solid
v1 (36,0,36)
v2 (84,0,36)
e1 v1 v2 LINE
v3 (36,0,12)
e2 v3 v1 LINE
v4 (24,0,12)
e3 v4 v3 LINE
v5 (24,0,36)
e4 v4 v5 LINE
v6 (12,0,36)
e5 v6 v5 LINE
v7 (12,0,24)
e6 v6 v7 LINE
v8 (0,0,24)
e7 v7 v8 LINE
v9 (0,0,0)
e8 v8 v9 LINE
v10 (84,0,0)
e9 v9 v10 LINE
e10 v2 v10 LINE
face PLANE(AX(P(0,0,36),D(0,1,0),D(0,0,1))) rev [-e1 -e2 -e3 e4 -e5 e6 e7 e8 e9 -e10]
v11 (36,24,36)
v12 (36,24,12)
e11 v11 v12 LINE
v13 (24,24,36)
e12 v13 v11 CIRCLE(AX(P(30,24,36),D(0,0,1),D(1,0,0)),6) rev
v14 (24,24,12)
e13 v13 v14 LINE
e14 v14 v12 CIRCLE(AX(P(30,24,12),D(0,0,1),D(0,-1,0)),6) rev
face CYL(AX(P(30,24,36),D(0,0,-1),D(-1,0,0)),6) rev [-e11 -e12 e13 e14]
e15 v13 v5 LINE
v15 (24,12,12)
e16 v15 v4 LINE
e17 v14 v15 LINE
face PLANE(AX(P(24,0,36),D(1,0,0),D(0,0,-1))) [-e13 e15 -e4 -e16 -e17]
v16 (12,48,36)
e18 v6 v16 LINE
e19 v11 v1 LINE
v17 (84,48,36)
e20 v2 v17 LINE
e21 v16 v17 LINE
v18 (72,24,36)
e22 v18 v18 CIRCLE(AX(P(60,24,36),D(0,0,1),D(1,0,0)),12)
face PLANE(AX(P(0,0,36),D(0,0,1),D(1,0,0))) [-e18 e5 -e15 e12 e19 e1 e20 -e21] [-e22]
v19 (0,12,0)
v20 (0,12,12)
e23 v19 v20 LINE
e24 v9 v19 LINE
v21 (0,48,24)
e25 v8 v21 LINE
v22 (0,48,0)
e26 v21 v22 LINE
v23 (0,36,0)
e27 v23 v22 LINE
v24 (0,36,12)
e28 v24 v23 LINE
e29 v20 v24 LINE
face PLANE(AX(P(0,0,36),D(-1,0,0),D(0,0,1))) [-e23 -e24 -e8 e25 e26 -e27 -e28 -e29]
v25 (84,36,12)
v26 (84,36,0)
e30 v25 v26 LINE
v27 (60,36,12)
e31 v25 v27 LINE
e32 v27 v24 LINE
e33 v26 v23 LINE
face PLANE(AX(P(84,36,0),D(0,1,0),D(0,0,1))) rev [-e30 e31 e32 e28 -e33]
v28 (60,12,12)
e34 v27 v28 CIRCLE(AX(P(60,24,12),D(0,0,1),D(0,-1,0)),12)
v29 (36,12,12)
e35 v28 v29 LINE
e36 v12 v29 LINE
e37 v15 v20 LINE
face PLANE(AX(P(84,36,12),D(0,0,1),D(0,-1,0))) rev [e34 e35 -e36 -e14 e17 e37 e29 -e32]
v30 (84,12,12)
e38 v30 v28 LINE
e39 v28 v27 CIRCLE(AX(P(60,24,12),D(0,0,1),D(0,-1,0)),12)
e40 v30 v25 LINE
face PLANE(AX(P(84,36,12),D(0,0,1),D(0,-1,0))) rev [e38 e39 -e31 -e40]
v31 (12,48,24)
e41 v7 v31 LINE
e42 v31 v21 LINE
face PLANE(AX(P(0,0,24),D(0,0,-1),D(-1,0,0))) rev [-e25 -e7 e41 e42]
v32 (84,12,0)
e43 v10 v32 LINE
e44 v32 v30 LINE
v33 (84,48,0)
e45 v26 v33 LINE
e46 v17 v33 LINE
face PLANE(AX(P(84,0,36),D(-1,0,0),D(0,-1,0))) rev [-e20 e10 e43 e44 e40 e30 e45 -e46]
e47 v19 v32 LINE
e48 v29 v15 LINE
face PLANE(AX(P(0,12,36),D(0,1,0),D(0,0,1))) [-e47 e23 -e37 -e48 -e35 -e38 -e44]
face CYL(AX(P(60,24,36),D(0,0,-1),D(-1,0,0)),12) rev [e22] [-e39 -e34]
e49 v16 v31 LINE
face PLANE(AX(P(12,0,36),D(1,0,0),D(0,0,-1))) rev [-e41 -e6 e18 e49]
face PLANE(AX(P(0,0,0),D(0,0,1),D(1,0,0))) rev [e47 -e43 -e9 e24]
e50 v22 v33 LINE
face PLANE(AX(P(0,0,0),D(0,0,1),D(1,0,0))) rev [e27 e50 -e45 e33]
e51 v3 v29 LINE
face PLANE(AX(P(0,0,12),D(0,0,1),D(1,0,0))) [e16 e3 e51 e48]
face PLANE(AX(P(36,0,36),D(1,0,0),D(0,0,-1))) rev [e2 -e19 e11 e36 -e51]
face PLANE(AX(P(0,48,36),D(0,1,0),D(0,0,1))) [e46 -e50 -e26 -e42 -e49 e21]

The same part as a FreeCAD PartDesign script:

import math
import FreeCAD as App
import Part
import Sketcher
Q = App.Units.Quantity

doc = App.newDocument("Part")
body = doc.addObject("PartDesign::Body", "Body")

# Sketch on XY plane
sketch1 = doc.addObject("Sketcher::SketchObject", "Sketch")
body.addObject(sketch1)
sketch1.AttachmentSupport = (doc.XY_Plane, [""])
sketch1.MapMode = "FlatFace"
sketch1.addGeometry(Part.LineSegment(App.Vector(0, 48, 0), App.Vector(0, 0, 0)), False)
sketch1.addGeometry(Part.LineSegment(App.Vector(0, 0, 0), App.Vector(84, 0, 0)), False)
sketch1.addGeometry(Part.LineSegment(App.Vector(84, 0, 0), App.Vector(84, 48, 0)), False)
sketch1.addGeometry(Part.LineSegment(App.Vector(84, 48, 0), App.Vector(0, 48, 0)), False)
sketch1.addGeometry(Part.ArcOfCircle(Part.Circle(App.Vector(30, 24, 0), App.Vector(0, 0, 1), 6), math.radians(0), math.radians(180)), False)
sketch1.addGeometry(Part.LineSegment(App.Vector(36, 24, 0), App.Vector(36, 12, 0)), False)
sketch1.addGeometry(Part.LineSegment(App.Vector(36, 12, 0), App.Vector(24, 12, 0)), False)
sketch1.addGeometry(Part.LineSegment(App.Vector(24, 12, 0), App.Vector(24, 24, 0)), False)
sketch1.addGeometry(Part.Circle(App.Vector(60, 24, 0), App.Vector(0, 0, 1), 12), False)
sketch1.addConstraint(Sketcher.Constraint("Coincident", 0, 2, 1, 1))
sketch1.addConstraint(Sketcher.Constraint("Coincident", 1, 2, 2, 1))
sketch1.addConstraint(Sketcher.Constraint("Coincident", 2, 2, 3, 1))
sketch1.addConstraint(Sketcher.Constraint("Coincident", 3, 2, 0, 1))
sketch1.addConstraint(Sketcher.Constraint("Tangent", 4, 1, 5, 1))
sketch1.addConstraint(Sketcher.Constraint("Coincident", 5, 2, 6, 1))
sketch1.addConstraint(Sketcher.Constraint("Coincident", 6, 2, 7, 1))
sketch1.addConstraint(Sketcher.Constraint("Tangent", 7, 2, 4, 2))
sketch1.addConstraint(Sketcher.Constraint("Vertical", 0))
sketch1.addConstraint(Sketcher.Constraint("Horizontal", 1))
sketch1.addConstraint(Sketcher.Constraint("Vertical", 2))
sketch1.addConstraint(Sketcher.Constraint("Horizontal", 3))
sketch1.addConstraint(Sketcher.Constraint("Vertical", 5))
sketch1.addConstraint(Sketcher.Constraint("Horizontal", 6))
sketch1.addConstraint(Sketcher.Constraint("Vertical", 7))
sketch1.addConstraint(Sketcher.Constraint("Coincident", 0, 2, -1, 1))
sketch1.addConstraint(Sketcher.Constraint("Horizontal", 4, 3, 8, 3))
sketch1.addConstraint(Sketcher.Constraint("Equal", 6, 5))
sketch1.addConstraint(Sketcher.Constraint("Diameter", 8, Q("24 mm")))
sketch1.addConstraint(Sketcher.Constraint("Radius", 4, Q("6 mm")))
sketch1.addConstraint(Sketcher.Constraint("DistanceX", 1, 1, 1, 2, Q("84 mm")))
sketch1.addConstraint(Sketcher.Constraint("DistanceY", 0, 2, 0, 1, Q("48 mm")))
sketch1.addConstraint(Sketcher.Constraint("DistanceX", -1, 1, 4, 3, Q("30 mm")))
sketch1.addConstraint(Sketcher.Constraint("DistanceY", -1, 1, 4, 3, Q("24 mm")))
sketch1.addConstraint(Sketcher.Constraint("DistanceX", -1, 1, 8, 3, Q("60 mm")))
pad1 = doc.addObject("PartDesign::Pad", "Pad")
body.addObject(pad1)
pad1.Profile = sketch1
pad1.Length = 36

# Sketch on XZ plane
sketch2 = doc.addObject("Sketcher::SketchObject", "Sketch001")
body.addObject(sketch2)
sketch2.AttachmentSupport = (doc.XZ_Plane, [""])
sketch2.MapMode = "FlatFace"
sketch2.AttachmentOffset = App.Placement(App.Vector(0, 0, -48), App.Rotation())
sketch2.addGeometry(Part.LineSegment(App.Vector(0, 24, 0), App.Vector(0, 36, 0)), False)
sketch2.addGeometry(Part.LineSegment(App.Vector(0, 36, 0), App.Vector(12, 36, 0)), False)
sketch2.addGeometry(Part.LineSegment(App.Vector(12, 36, 0), App.Vector(12, 24, 0)), False)
sketch2.addGeometry(Part.LineSegment(App.Vector(12, 24, 0), App.Vector(0, 24, 0)), False)
sketch2.addConstraint(Sketcher.Constraint("Coincident", 0, 2, 1, 1))
sketch2.addConstraint(Sketcher.Constraint("Coincident", 1, 2, 2, 1))
sketch2.addConstraint(Sketcher.Constraint("Coincident", 2, 2, 3, 1))
sketch2.addConstraint(Sketcher.Constraint("Coincident", 3, 2, 0, 1))
sketch2.addConstraint(Sketcher.Constraint("Vertical", 0))
sketch2.addConstraint(Sketcher.Constraint("Horizontal", 1))
sketch2.addConstraint(Sketcher.Constraint("Vertical", 2))
sketch2.addConstraint(Sketcher.Constraint("Horizontal", 3))
sketch2.addConstraint(Sketcher.Constraint("PointOnObject", 0, 2, -2))
sketch2.addConstraint(Sketcher.Constraint("Equal", 3, 0))
sketch2.addConstraint(Sketcher.Constraint("DistanceX", 1, 1, 1, 2, Q("12 mm")))
sketch2.addConstraint(Sketcher.Constraint("DistanceY", -1, 1, 0, 2, Q("36 mm")))
pocket1 = doc.addObject("PartDesign::Pocket", "Pocket")
body.addObject(pocket1)
pocket1.Profile = sketch2
pocket1.Type = "ThroughAll"
pocket1.Reversed = True

# Sketch on YZ plane
sketch3 = doc.addObject("Sketcher::SketchObject", "Sketch002")
body.addObject(sketch3)
sketch3.AttachmentSupport = (doc.YZ_Plane, [""])
sketch3.MapMode = "FlatFace"
sketch3.addGeometry(Part.LineSegment(App.Vector(36, 0, 0), App.Vector(12, 0, 0)), False)
sketch3.addGeometry(Part.LineSegment(App.Vector(12, 0, 0), App.Vector(12, 12, 0)), False)
sketch3.addGeometry(Part.LineSegment(App.Vector(12, 12, 0), App.Vector(36, 12, 0)), False)
sketch3.addGeometry(Part.LineSegment(App.Vector(36, 12, 0), App.Vector(36, 0, 0)), False)
sketch3.addConstraint(Sketcher.Constraint("Coincident", 0, 2, 1, 1))
sketch3.addConstraint(Sketcher.Constraint("Coincident", 1, 2, 2, 1))
sketch3.addConstraint(Sketcher.Constraint("Coincident", 2, 2, 3, 1))
sketch3.addConstraint(Sketcher.Constraint("Coincident", 3, 2, 0, 1))
sketch3.addConstraint(Sketcher.Constraint("Horizontal", 0))
sketch3.addConstraint(Sketcher.Constraint("Vertical", 1))
sketch3.addConstraint(Sketcher.Constraint("Horizontal", 2))
sketch3.addConstraint(Sketcher.Constraint("Vertical", 3))
sketch3.addConstraint(Sketcher.Constraint("PointOnObject", 0, 2, -1))
sketch3.addConstraint(Sketcher.Constraint("DistanceX", 0, 2, 0, 1, Q("24 mm")))
sketch3.addConstraint(Sketcher.Constraint("DistanceY", 1, 1, 1, 2, Q("12 mm")))
sketch3.addConstraint(Sketcher.Constraint("DistanceX", -1, 1, 0, 2, Q("12 mm")))
pocket2 = doc.addObject("PartDesign::Pocket", "Pocket001")
body.addObject(pocket2)
pocket2.Profile = sketch3
pocket2.Type = "ThroughAll"
pocket2.Reversed = True

# Sketch on XY plane
sketch4 = doc.addObject("Sketcher::SketchObject", "Sketch003")
body.addObject(sketch4)
sketch4.AttachmentSupport = (doc.XY_Plane, [""])
sketch4.MapMode = "FlatFace"
sketch4.AttachmentOffset = App.Placement(App.Vector(0, 0, 36), App.Rotation())
sketch4.addGeometry(Part.LineSegment(App.Vector(24, 12, 0), App.Vector(24, 0, 0)), False)
sketch4.addGeometry(Part.LineSegment(App.Vector(24, 0, 0), App.Vector(36, 0, 0)), False)
sketch4.addGeometry(Part.LineSegment(App.Vector(36, 0, 0), App.Vector(36, 12, 0)), False)
sketch4.addGeometry(Part.LineSegment(App.Vector(36, 12, 0), App.Vector(24, 12, 0)), False)
sketch4.addConstraint(Sketcher.Constraint("Coincident", 0, 2, 1, 1))
sketch4.addConstraint(Sketcher.Constraint("Coincident", 1, 2, 2, 1))
sketch4.addConstraint(Sketcher.Constraint("Coincident", 2, 2, 3, 1))
sketch4.addConstraint(Sketcher.Constraint("Coincident", 3, 2, 0, 1))
sketch4.addConstraint(Sketcher.Constraint("Vertical", 0))
sketch4.addConstraint(Sketcher.Constraint("Horizontal", 1))
sketch4.addConstraint(Sketcher.Constraint("Vertical", 2))
sketch4.addConstraint(Sketcher.Constraint("Horizontal", 3))
sketch4.addConstraint(Sketcher.Constraint("PointOnObject", 0, 2, -1))
sketch4.addConstraint(Sketcher.Constraint("Equal", 3, 0))
sketch4.addConstraint(Sketcher.Constraint("DistanceX", 1, 1, 1, 2, Q("12 mm")))
sketch4.addConstraint(Sketcher.Constraint("DistanceX", -1, 1, 0, 2, Q("24 mm")))
pocket3 = doc.addObject("PartDesign::Pocket", "Pocket002")
body.addObject(pocket3)
pocket3.Profile = sketch4
pocket3.Length = 24

doc.recompute()
